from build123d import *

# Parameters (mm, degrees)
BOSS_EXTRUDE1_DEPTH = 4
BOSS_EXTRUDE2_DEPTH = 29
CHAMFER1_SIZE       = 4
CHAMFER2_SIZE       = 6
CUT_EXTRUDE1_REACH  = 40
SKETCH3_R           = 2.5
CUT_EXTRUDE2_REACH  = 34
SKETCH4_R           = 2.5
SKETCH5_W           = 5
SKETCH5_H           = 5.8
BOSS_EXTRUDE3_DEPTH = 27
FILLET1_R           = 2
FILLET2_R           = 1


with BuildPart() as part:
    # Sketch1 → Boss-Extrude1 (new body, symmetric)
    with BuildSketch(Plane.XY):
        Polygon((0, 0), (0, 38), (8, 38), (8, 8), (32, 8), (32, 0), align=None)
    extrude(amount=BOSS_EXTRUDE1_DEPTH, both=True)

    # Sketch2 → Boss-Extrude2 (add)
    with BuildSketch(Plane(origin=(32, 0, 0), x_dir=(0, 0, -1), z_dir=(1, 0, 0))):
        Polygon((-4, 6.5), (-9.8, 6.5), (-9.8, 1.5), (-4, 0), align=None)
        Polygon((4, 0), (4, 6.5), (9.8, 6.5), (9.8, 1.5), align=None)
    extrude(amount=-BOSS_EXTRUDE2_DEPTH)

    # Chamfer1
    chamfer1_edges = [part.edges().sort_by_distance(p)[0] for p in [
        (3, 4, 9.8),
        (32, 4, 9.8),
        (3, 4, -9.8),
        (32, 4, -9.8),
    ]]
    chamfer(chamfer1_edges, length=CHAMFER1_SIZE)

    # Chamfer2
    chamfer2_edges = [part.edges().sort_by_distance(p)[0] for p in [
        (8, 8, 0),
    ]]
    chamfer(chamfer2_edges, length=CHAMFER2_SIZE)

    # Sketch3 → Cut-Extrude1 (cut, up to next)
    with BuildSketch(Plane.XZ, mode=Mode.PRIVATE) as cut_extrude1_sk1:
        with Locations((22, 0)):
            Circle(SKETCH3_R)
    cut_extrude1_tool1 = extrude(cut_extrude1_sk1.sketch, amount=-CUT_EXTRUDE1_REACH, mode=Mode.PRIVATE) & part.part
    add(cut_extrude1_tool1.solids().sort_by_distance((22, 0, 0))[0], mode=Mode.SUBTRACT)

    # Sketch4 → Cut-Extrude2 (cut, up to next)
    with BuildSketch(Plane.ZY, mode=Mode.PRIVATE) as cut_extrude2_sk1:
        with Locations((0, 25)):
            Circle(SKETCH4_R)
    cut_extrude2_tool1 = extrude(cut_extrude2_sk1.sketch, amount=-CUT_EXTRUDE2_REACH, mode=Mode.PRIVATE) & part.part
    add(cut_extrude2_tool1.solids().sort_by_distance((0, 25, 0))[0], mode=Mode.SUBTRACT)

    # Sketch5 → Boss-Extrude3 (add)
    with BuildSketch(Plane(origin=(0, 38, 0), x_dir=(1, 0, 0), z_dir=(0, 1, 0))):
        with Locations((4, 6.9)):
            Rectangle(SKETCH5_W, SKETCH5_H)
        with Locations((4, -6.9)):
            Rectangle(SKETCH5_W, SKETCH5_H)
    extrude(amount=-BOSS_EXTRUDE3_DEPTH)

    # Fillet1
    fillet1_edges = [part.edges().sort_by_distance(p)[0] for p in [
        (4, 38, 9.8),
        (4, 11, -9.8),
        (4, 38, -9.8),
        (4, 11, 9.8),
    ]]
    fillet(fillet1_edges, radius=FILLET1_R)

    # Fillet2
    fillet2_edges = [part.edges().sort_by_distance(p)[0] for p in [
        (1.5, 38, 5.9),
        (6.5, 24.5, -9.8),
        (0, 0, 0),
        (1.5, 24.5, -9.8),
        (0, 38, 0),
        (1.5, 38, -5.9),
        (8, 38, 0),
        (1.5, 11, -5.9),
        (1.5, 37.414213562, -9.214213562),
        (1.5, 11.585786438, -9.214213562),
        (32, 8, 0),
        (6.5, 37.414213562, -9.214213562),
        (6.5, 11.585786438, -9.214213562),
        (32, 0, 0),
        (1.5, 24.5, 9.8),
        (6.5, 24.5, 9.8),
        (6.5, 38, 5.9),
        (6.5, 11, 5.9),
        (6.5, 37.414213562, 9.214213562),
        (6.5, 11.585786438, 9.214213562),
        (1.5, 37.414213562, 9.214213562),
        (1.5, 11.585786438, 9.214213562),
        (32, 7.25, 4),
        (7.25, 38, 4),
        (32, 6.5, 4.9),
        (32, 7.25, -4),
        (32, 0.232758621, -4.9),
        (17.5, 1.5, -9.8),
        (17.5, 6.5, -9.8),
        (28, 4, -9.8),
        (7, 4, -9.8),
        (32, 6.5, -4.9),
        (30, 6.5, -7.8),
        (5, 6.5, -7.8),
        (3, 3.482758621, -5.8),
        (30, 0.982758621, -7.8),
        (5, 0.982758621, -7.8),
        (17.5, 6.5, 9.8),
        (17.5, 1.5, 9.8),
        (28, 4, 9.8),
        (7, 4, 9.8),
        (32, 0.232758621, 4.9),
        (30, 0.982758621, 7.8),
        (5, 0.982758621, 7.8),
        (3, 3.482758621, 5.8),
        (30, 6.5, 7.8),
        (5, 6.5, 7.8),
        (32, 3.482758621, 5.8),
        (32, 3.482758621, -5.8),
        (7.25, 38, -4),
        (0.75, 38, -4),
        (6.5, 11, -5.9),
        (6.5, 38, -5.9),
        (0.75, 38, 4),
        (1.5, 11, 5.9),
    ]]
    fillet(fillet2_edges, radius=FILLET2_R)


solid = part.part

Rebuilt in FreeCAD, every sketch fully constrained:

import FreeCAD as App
import Part
import Sketcher

V = App.Vector
Q = App.Units.Quantity


def edges_at(feature, points):
    """Names of the edges that pass closest to the given points."""
    edges = feature.Shape.Edges
    near = lambda p: min(range(len(edges)), key=lambda i: edges[i].distToShape(Part.Vertex(*p))[0])
    return sorted({f"Edge{near(p) + 1}" for p in points})


def add_polygon(sketch, points):
    """Adds a closed chain of lines whose ends are joined by coincident constraints."""
    first, n = sketch.GeometryCount, len(points)
    for a, b in zip(points, points[1:] + points[:1]):
        sketch.addGeometry(Part.LineSegment(App.Vector(*a, 0), App.Vector(*b, 0)), False)
    for i in range(n):
        sketch.addConstraint(Sketcher.Constraint("Coincident", first + i, 2, first + (i + 1) % n, 1))

doc = App.newDocument("Part")
params = doc.addObject("Spreadsheet::Sheet", "Params")
for row, (alias, value) in enumerate([
    ("sketch1_width", "32 mm"),
    ("sketch1_width2", "24 mm"),
    ("sketch1_height", "38 mm"),
    ("pad1_length", "8 mm"),
    ("sketch2_width", "5 mm"),
    ("sketch2_width2", "6.5 mm"),
    ("sketch2_height", "5.8 mm"),
    ("pad2_length", "29 mm"),
    ("chamfer_size", "4 mm"),
    ("chamfer2_size", "6 mm"),
    ("sketch3_diameter", "5 mm"),
    ("sketch4_diameter", "5 mm"),
    ("sketch5_width", "5 mm"),
    ("sketch5_height", "5.8 mm"),
    ("pad3_length", "27 mm"),
    ("fillet_radius", "2 mm"),
    ("fillet2_radius", "1 mm"),
], start=1):
    params.set(f"A{row}", alias)
    params.set(f"B{row}", "=" + value)
    params.setAlias(f"B{row}", alias)

body = doc.addObject("PartDesign::Body", "Body")

sketch1 = doc.addObject("Sketcher::SketchObject", "Sketch")
body.addObject(sketch1)
sketch1.AttachmentSupport = (doc.XY_Plane, [""])
sketch1.MapMode = "FlatFace"
add_polygon(sketch1, [(0, 38), (0, 0), (32, 0), (32, 8), (8, 8), (8, 38)])
sketch1.addConstraint(Sketcher.Constraint("Vertical", 0))
sketch1.addConstraint(Sketcher.Constraint("Horizontal", 1))
sketch1.addConstraint(Sketcher.Constraint("Vertical", 2))
sketch1.addConstraint(Sketcher.Constraint("Horizontal", 3))
sketch1.addConstraint(Sketcher.Constraint("Vertical", 4))
sketch1.addConstraint(Sketcher.Constraint("Horizontal", 5))
sketch1.addConstraint(Sketcher.Constraint("Coincident", 0, 2, -1, 1))
sketch1.addConstraint(Sketcher.Constraint("Equal", 5, 2))
sketch1.addConstraint(Sketcher.Constraint("DistanceX", 1, 1, 1, 2, Q("32 mm")))
sketch1.addConstraint(Sketcher.Constraint("DistanceX", 3, 2, 3, 1, Q("24 mm")))
sketch1.addConstraint(Sketcher.Constraint("DistanceY", 0, 2, 0, 1, Q("38 mm")))
sketch1.setExpression("Constraints[14]", "Params.sketch1_width")
sketch1.setExpression("Constraints[15]", "Params.sketch1_width2")
sketch1.setExpression("Constraints[16]", "Params.sketch1_height")
pad1 = doc.addObject("PartDesign::Pad", "Pad")
body.addObject(pad1)
pad1.Profile = sketch1
pad1.setExpression("Length", "Params.pad1_length")
pad1.Midplane = True

sketch2 = doc.addObject("Sketcher::SketchObject", "Sketch001")
body.addObject(sketch2)
sketch2.AttachmentSupport = (doc.YZ_Plane, [""])
sketch2.MapMode = "FlatFace"
sketch2.AttachmentOffset = App.Placement(V(0, 0, 32), App.Rotation())
add_polygon(sketch2, [(6, 4), (6, 10), (2, 10), (0, 4)])
add_polygon(sketch2, [(6, -4), (0, -4), (2, -10), (6, -10)])
sketch2.addConstraint(Sketcher.Constraint("Vertical", 0))
sketch2.addConstraint(Sketcher.Constraint("Horizontal", 1))
sketch2.addConstraint(Sketcher.Constraint("Horizontal", 3))
sketch2.addConstraint(Sketcher.Constraint("Horizontal", 4))
sketch2.addConstraint(Sketcher.Constraint("Horizontal", 6))
sketch2.addConstraint(Sketcher.Constraint("Vertical", 7))
sketch2.addConstraint(Sketcher.Constraint("Symmetric", 2, 2, 4, 2, -1, 1))
sketch2.addConstraint(Sketcher.Constraint("Symmetric", 1, 2, 5, 2, -1))
sketch2.addConstraint(Sketcher.Constraint("PointOnObject", 2, 2, -2))
sketch2.addConstraint(Sketcher.Constraint("Vertical", 3, 2, 6, 2))
sketch2.addConstraint(Sketcher.Constraint("DistanceX", 1, 2, 1, 1, Q("5 mm")))
sketch2.addConstraint(Sketcher.Constraint("DistanceX", 3, 1, 3, 2, Q("6.5 mm")))
sketch2.addConstraint(Sketcher.Constraint("DistanceY", 0, 1, 0, 2, Q("5.8 mm")))
sketch2.addConstraint(Sketcher.Constraint("DistanceY", -1, 1, 2, 2, Q("4 mm")))
sketch2.setExpression("Constraints[18]", "Params.sketch2_width")
sketch2.setExpression("Constraints[19]", "Params.sketch2_width2")
sketch2.setExpression("Constraints[20]", "Params.sketch2_height")
pad2 = doc.addObject("PartDesign::Pad", "Pad001")
body.addObject(pad2)
pad2.Profile = sketch2
pad2.setExpression("Length", "Params.pad2_length")
pad2.Reversed = True
doc.recompute()

chamfer = doc.addObject("PartDesign::Chamfer", "Chamfer")
body.addObject(chamfer)
chamfer.Base = (pad2, edges_at(pad2, [
    (3, 4, 9.8),
    (32, 4, 9.8),
    (3, 4, -9.8),
    (32, 4, -9.8),
]))
chamfer.setExpression("Size", "Params.chamfer_size")
doc.recompute()

chamfer2 = doc.addObject("PartDesign::Chamfer", "Chamfer001")
body.addObject(chamfer2)
chamfer2.Base = (chamfer, edges_at(chamfer, [(8, 8, 0)]))
chamfer2.setExpression("Size", "Params.chamfer2_size")

sketch3 = doc.addObject("Sketcher::SketchObject", "Sketch002")
body.addObject(sketch3)
sketch3.AttachmentSupport = (doc.XZ_Plane, [""])
sketch3.MapMode = "FlatFace"
sketch3.addGeometry(Part.Circle(V(22, 0, 0), V(0, 0, 1), 2.5), False)
sketch3.addConstraint(Sketcher.Constraint("PointOnObject", 0, 3, -1))
sketch3.addConstraint(Sketcher.Constraint("Diameter", 0, Q("5 mm")))
sketch3.addConstraint(Sketcher.Constraint("DistanceX", -1, 1, 0, 3, Q("22 mm")))
sketch3.setExpression("Constraints[1]", "Params.sketch3_diameter")
pocket1 = doc.addObject("PartDesign::Pocket", "Pocket")
body.addObject(pocket1)
pocket1.Profile = sketch3
pocket1.Type = "UpToFirst"

sketch4 = doc.addObject("Sketcher::SketchObject", "Sketch003")
body.addObject(sketch4)
sketch4.AttachmentSupport = (doc.YZ_Plane, [""])
sketch4.MapMode = "FlatFace"
sketch4.addGeometry(Part.Circle(V(25, 0, 0), V(0, 0, 1), 2.5), False)
sketch4.addConstraint(Sketcher.Constraint("PointOnObject", 0, 3, -1))
sketch4.addConstraint(Sketcher.Constraint("Diameter", 0, Q("5 mm")))
sketch4.addConstraint(Sketcher.Constraint("DistanceX", -1, 1, 0, 3, Q("25 mm")))
sketch4.setExpression("Constraints[1]", "Params.sketch4_diameter")
pocket2 = doc.addObject("PartDesign::Pocket", "Pocket001")
body.addObject(pocket2)
pocket2.Profile = sketch4
pocket2.Type = "UpToFirst"
pocket2.Reversed = True

sketch5 = doc.addObject("Sketcher::SketchObject", "Sketch004")
body.addObject(sketch5)
sketch5.AttachmentSupport = (doc.XZ_Plane, [""])
sketch5.MapMode = "FlatFace"
sketch5.AttachmentOffset = App.Placement(V(0, 0, -38), App.Rotation())
add_polygon(sketch5, [(2, -10), (2, -4), (6, -4), (6, -10)])
add_polygon(sketch5, [(2, 4), (2, 10), (6, 10), (6, 4)])
sketch5.addConstraint(Sketcher.Constraint("Vertical", 0))
sketch5.addConstraint(Sketcher.Constraint("Horizontal", 1))
sketch5.addConstraint(Sketcher.Constraint("Vertical", 2))
sketch5.addConstraint(Sketcher.Constraint("Horizontal", 3))
sketch5.addConstraint(Sketcher.Constraint("Vertical", 4))
sketch5.addConstraint(Sketcher.Constraint("Horizontal", 5))
sketch5.addConstraint(Sketcher.Constraint("Vertical", 6))
sketch5.addConstraint(Sketcher.Constraint("Horizontal", 7))
sketch5.addConstraint(Sketcher.Constraint("Symmetric", 3, 2, 4, 2, -1))
sketch5.addConstraint(Sketcher.Constraint("Symmetric", 1, 2, 6, 2, -1))
sketch5.addConstraint(Sketcher.Constraint("DistanceX", 1, 1, 1, 2, Q("5 mm")))
sketch5.addConstraint(Sketcher.Constraint("DistanceY", 0, 1, 0, 2, Q("5.8 mm")))
sketch5.addConstraint(Sketcher.Constraint("DistanceY", 0, 2, -1, 1, Q("4 mm")))
sketch5.addConstraint(Sketcher.Constraint("DistanceX", -1, 1, 0, 2, Q("1.5 mm")))
sketch5.setExpression("Constraints[18]", "Params.sketch5_width")
sketch5.setExpression("Constraints[19]", "Params.sketch5_height")
pad3 = doc.addObject("PartDesign::Pad", "Pad002")
body.addObject(pad3)
pad3.Profile = sketch5
pad3.setExpression("Length", "Params.pad3_length")
doc.recompute()

fillet = doc.addObject("PartDesign::Fillet", "Fillet")
body.addObject(fillet)
fillet.Base = (pad3, edges_at(pad3, [
    (4, 38, 9.8),
    (4, 11, -9.8),
    (4, 38, -9.8),
    (4, 11, 9.8),
]))
fillet.setExpression("Radius", "Params.fillet_radius")
doc.recompute()

fillet2 = doc.addObject("PartDesign::Fillet", "Fillet001")
body.addObject(fillet2)
fillet2.Base = (fillet, edges_at(fillet, [
    (1.5, 38, 5.9),
    (6.5, 24.5, -9.8),
    (0, 0, 0),
    (1.5, 24.5, -9.8),
    (0, 38, 0),
    (1.5, 38, -5.9),
    (8, 38, 0),
    (1.5, 11, -5.9),
    (1.5, 37.414, -9.214),
    (1.5, 11.586, -9.214),
    (32, 8, 0),
    (6.5, 37.414, -9.214),
    (6.5, 11.586, -9.214),
    (32, 0, 0),
    (1.5, 24.5, 9.8),
    (6.5, 24.5, 9.8),
    (6.5, 38, 5.9),
    (6.5, 11, 5.9),
    (6.5, 37.414, 9.214),
    (6.5, 11.586, 9.214),
    (1.5, 37.414, 9.214),
    (1.5, 11.586, 9.214),
    (32, 7.25, 4),
    (7.25, 38, 4),
    (32, 6.5, 4.9),
    (32, 7.25, -4),
    (32, 0.233, -4.9),
    (17.5, 1.5, -9.8),
    (17.5, 6.5, -9.8),
    (28, 4, -9.8),
    (7, 4, -9.8),
    (32, 6.5, -4.9),
    (30, 6.5, -7.8),
    (5, 6.5, -7.8),
    (3, 3.483, -5.8),
    (30, 0.983, -7.8),
    (5, 0.983, -7.8),
    (17.5, 6.5, 9.8),
    (17.5, 1.5, 9.8),
    (28, 4, 9.8),
    (7, 4, 9.8),
    (32, 0.233, 4.9),
    (30, 0.983, 7.8),
    (5, 0.983, 7.8),
    (3, 3.483, 5.8),
    (30, 6.5, 7.8),
    (5, 6.5, 7.8),
    (32, 3.483, 5.8),
    (32, 3.483, -5.8),
    (7.25, 38, -4),
    (0.75, 38, -4),
    (6.5, 11, -5.9),
    (6.5, 38, -5.9),
    (0.75, 38, 4),
    (1.5, 11, 5.9),
]))
fillet2.setExpression("Radius", "Params.fillet2_radius")

doc.recompute()
